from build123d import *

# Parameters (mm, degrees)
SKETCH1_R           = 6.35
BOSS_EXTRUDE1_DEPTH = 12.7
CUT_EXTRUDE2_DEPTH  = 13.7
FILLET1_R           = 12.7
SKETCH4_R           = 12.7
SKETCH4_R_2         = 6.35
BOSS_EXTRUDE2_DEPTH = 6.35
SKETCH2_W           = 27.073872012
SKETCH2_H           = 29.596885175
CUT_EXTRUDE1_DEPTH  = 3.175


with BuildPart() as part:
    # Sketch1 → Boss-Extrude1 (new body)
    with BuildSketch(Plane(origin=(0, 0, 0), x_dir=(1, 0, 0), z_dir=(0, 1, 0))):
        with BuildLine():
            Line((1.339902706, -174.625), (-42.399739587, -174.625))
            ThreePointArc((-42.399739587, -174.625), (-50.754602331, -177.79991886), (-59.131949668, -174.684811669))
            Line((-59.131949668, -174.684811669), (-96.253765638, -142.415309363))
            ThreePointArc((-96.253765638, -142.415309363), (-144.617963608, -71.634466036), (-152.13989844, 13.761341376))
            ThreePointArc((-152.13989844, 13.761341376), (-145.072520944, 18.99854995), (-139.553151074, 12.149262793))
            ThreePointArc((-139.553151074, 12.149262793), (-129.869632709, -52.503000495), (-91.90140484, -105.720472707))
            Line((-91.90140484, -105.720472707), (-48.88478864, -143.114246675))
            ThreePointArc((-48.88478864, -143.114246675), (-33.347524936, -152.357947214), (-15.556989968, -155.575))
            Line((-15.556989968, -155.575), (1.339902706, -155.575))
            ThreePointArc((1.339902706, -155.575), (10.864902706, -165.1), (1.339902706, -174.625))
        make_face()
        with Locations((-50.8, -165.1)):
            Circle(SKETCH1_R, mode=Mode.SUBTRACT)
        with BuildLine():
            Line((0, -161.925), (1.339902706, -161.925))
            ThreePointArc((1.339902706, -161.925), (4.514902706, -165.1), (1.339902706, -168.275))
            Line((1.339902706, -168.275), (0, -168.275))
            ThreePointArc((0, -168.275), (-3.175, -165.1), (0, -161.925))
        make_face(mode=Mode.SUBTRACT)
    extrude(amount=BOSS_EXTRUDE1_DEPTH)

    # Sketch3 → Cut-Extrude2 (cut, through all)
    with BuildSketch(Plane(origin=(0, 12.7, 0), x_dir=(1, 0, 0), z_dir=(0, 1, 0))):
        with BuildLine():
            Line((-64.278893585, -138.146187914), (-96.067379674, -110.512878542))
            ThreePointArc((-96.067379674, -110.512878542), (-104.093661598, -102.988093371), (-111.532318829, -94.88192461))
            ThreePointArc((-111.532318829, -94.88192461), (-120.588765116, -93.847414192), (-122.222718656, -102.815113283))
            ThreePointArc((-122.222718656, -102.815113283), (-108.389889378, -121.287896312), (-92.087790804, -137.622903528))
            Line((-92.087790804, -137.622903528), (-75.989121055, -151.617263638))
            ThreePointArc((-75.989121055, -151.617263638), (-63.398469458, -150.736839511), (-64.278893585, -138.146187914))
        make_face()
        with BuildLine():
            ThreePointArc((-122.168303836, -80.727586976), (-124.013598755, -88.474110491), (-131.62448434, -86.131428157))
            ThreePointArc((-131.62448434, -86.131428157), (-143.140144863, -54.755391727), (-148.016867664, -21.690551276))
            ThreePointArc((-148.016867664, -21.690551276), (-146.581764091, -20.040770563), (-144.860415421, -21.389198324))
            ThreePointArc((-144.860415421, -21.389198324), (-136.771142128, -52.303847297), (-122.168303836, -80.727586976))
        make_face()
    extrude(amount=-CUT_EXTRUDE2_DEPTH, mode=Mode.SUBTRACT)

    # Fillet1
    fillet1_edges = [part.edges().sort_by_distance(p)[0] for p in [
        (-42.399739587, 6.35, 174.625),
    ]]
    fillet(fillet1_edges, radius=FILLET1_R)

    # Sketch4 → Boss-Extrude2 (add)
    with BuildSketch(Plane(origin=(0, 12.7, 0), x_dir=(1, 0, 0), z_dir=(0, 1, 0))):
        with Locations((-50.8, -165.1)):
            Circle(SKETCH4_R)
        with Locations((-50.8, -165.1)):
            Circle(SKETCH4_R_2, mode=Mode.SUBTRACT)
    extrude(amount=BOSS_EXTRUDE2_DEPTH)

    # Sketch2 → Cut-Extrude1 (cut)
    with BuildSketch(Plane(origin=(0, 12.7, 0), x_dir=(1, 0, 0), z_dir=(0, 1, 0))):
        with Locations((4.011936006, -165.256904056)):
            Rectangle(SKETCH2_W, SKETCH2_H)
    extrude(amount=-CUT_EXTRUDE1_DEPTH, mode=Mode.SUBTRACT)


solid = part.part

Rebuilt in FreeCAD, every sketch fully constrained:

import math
import FreeCAD as App
import Part
import Sketcher
from FreeCAD import Vector
Q = App.Units.Quantity


def edges_at(feature, points):
    """Names of the edges that pass closest to the given points."""
    edges = feature.Shape.Edges
    near = lambda p: min(range(len(edges)), key=lambda i: edges[i].distToShape(Part.Vertex(*p))[0])
    return sorted({f"Edge{near(p) + 1}" for p in points})

doc = App.newDocument("Part")
params = doc.addObject("Spreadsheet::Sheet", "Params")
for row, (alias, value) in enumerate([
    ("sketch1_radius", "2 in"),
    ("sketch1_diameter", "0.5 in"),
    ("sketch1_radius2", "0.5 in"),
    ("sketch1_radius3", "0.375 in"),
    ("sketch1_radius4", "5.515 in"),
    ("pad1_length", "0.5 in"),
    ("sketch2_radius", "5.765 in"),
    ("sketch2_radius2", "0.0625 in"),
    ("fillet_radius", "0.5 in"),
    ("sketch3_diameter", "1 in"),
    ("sketch3_diameter2", "0.5 in"),
    ("pad2_length", "0.25 in"),
    ("pocket2_length", "0.125 in"),
], start=1):
    params.set(f"A{row}", alias)
    params.set(f"B{row}", "=" + value)
    params.setAlias(f"B{row}", alias)

body = doc.addObject("PartDesign::Body", "Body")

sketch1 = body.newObject("Sketcher::SketchObject", "Sketch")
sketch1.AttachmentSupport = (doc.getObject("XZ_Plane"), [""])
sketch1.MapMode = "FlatFace"
sketch1.addGeometry([
    Part.LineSegment(Vector(-42.4, 174.6, 0), Vector(1.3, 174.6, 0)),
    Part.ArcOfCircle(Part.Circle(Vector(1.3, 165.1, 0), Vector(0, 0, 1), 9.5), math.radians(-90), math.radians(90)),
    Part.LineSegment(Vector(1.3, 155.6, 0), Vector(-15.6, 155.6, 0)),
    Part.ArcOfCircle(Part.Circle(Vector(-15.6, 104.8, 0), Vector(0, 0, 1), 50.8), math.radians(90), math.radians(131)),
    Part.LineSegment(Vector(-48.9, 143.1, 0), Vector(-91.9, 105.7, 0)),
    Part.ArcOfCircle(Part.Circle(Vector(0, 0, 0), Vector(0, 0, 1), 140.1), math.radians(131), math.radians(185)),
    Part.ArcOfCircle(Part.Circle(Vector(-145.9, -12.7, 0), Vector(0, 0, 1), 6.3), math.radians(-170), math.radians(5)),
    Part.ArcOfCircle(Part.Circle(Vector(14.9, 14.6, 0), Vector(0, 0, 1), 169.4), math.radians(131), math.radians(190)),
    Part.LineSegment(Vector(-96.3, 142.4, 0), Vector(-59.1, 174.7, 0)),
    Part.ArcOfCircle(Part.Circle(Vector(-50.8, 165.1, 0), Vector(0, 0, 1), 12.7), math.radians(49), math.radians(131)),
    Part.LineSegment(Vector(0, 161.9, 0), Vector(1.3, 161.9, 0)),
    Part.ArcOfCircle(Part.Circle(Vector(1.3, 165.1, 0), Vector(0, 0, 1), 3.2), math.radians(-90), math.radians(90)),
    Part.LineSegment(Vector(1.3, 168.3, 0), Vector(0, 168.3, 0)),
    Part.ArcOfCircle(Part.Circle(Vector(0, 165.1, 0), Vector(0, 0, 1), 3.2), math.radians(90), math.radians(270)),
    Part.Circle(Vector(-50.8, 165.1, 0), Vector(0, 0, 1), 6.3),
], False)
sketch1.addConstraint([
    Sketcher.Constraint("Tangent", 0, 2, 1, 2),
    Sketcher.Constraint("Tangent", 1, 1, 2, 1),
    Sketcher.Constraint("Tangent", 2, 2, 3, 1),
    Sketcher.Constraint("Tangent", 3, 2, 4, 1),
    Sketcher.Constraint("Tangent", 4, 2, 5, 1),
    Sketcher.Constraint("Tangent", 5, 2, 6, 2),
    Sketcher.Constraint("Tangent", 6, 1, 7, 2),
    Sketcher.Constraint("Tangent", 7, 1, 8, 1),
    Sketcher.Constraint("Tangent", 8, 2, 9, 2),
    Sketcher.Constraint("Coincident", 9, 1, 0, 1),
    Sketcher.Constraint("Tangent", 10, 2, 11, 1),
    Sketcher.Constraint("Tangent", 11, 2, 12, 1),
    Sketcher.Constraint("Tangent", 12, 2, 13, 1),
    Sketcher.Constraint("Tangent", 13, 2, 10, 1),
    Sketcher.Constraint("Horizontal", 0),
    Sketcher.Constraint("Horizontal", 2),
    Sketcher.Constraint("Horizontal", 10),
    Sketcher.Constraint("Horizontal", 12),
    Sketcher.Constraint("Coincident", 5, 3, -1, 1),
    Sketcher.Constraint("Coincident", 11, 3, 1, 3),
    Sketcher.Constraint("Coincident", 14, 3, 9, 3),
    Sketcher.Constraint("Equal", 6, 14),
    Sketcher.Constraint("PointOnObject", 13, 3, -2),
    Sketcher.Constraint("Parallel", 4, 8),
    Sketcher.Constraint("Horizontal", 1, 3, 9, 3),
    Sketcher.Constraint("Radius", 3, Q("2 in")),
    Sketcher.Constraint("Diameter", 14, Q("0.5 in")),
    Sketcher.Constraint("Radius", 9, Q("0.5 in")),
    Sketcher.Constraint("DistanceX", 9, 3, -1, 1, Q("2 in")),
    Sketcher.Constraint("Angle", 4, Q("-139 deg")),
    Sketcher.Constraint("Radius", 1, Q("0.375 in")),
    Sketcher.Constraint("Radius", 5, Q("5.515 in")),
    Sketcher.Constraint("Radius", 11, Q("0.125 in")),
    Sketcher.Constraint("DistanceY", 6, 3, 1, 3, Q("7 in")),
    Sketcher.Constraint("DistanceY", -1, 1, 1, 3, Q("6.5 in")),
    Sketcher.Constraint("Radius", 7, 169.416563),
    Sketcher.Constraint("DistanceX", 0, 1, 0, 2, 43.739642),
])
sketch1.setExpression("Constraints[25]", "Params.sketch1_radius")
sketch1.setExpression("Constraints[26]", "Params.sketch1_diameter")
sketch1.setExpression("Constraints[27]", "Params.sketch1_radius2")
sketch1.setExpression("Constraints[30]", "Params.sketch1_radius3")
sketch1.setExpression("Constraints[31]", "Params.sketch1_radius4")
pad1 = body.newObject("PartDesign::Pad", "Pad")
pad1.Profile = sketch1
pad1.setExpression("Length", "Params.pad1_length")
pad1.Reversed = True

sketch2 = body.newObject("Sketcher::SketchObject", "Sketch001")
sketch2.AttachmentSupport = (doc.getObject("XZ_Plane"), [""])
sketch2.MapMode = "FlatFace"
sketch2.AttachmentOffset = App.Placement(Vector(0, 0, -0.5 * 25.4), App.Rotation())
sketch2.addGeometry([
    Part.LineSegment(Vector(-64.3, 138.1, 0), Vector(-96.1, 110.5, 0)),
    Part.ArcOfCircle(Part.Circle(Vector(0, 0, 0), Vector(0, 0, 1), 146.4), math.radians(131), math.radians(139.61)),
    Part.ArcOfCircle(Part.Circle(Vector(-116.6, 99.2, 0), Vector(0, 0, 1), 6.7), math.radians(147), math.radians(320)),
    Part.ArcOfCircle(Part.Circle(Vector(14.9, 14.6, 0), Vector(0, 0, 1), 163.1), math.radians(131), math.radians(147.23)),
    Part.LineSegment(Vector(-92.1, 137.6, 0), Vector(-76, 151.6, 0)),
    Part.ArcOfCircle(Part.Circle(Vector(-70.1, 144.9, 0), Vector(0, 0, 1), 8.9), math.radians(-49), math.radians(131)),
    Part.ArcOfCircle(Part.Circle(Vector(-126.7, 83.7, 0), Vector(0, 0, 1), 5.5), math.radians(-33), math.radians(154)),
    Part.ArcOfCircle(Part.Circle(Vector(0, 0, 0), Vector(0, 0, 1), 146.4), math.radians(147), math.radians(172)),
    Part.ArcOfCircle(Part.Circle(Vector(-146.4, 21.6, 0), Vector(0, 0, 1), 1.6), math.radians(177), math.radians(352)),
    Part.ArcOfCircle(Part.Circle(Vector(14.9, 14.6, 0), Vector(0, 0, 1), 163.1), math.radians(154), math.radians(177)),
], False)
sketch2.addConstraint([
    Sketcher.Constraint("Tangent", 0, 2, 1, 1),
    Sketcher.Constraint("Tangent", 1, 2, 2, 2),
    Sketcher.Constraint("Tangent", 2, 1, 3, 2),
    Sketcher.Constraint("Tangent", 3, 1, 4, 1),
    Sketcher.Constraint("Tangent", 4, 2, 5, 2),
    Sketcher.Constraint("Tangent", 5, 1, 0, 1),
    Sketcher.Constraint("Tangent", 6, 1, 7, 1),
    Sketcher.Constraint("Tangent", 7, 2, 8, 2),
    Sketcher.Constraint("Tangent", 8, 1, 9, 2),
    Sketcher.Constraint("Tangent", 9, 1, 6, 2),
    Sketcher.Constraint("Coincident", 1, 3, -1, 1),
    Sketcher.Constraint("Coincident", 7, 3, -1, 1),
    Sketcher.Constraint("Coincident", 9, 3, 3, 3),
    Sketcher.Constraint("Equal", 1, 7),
    Sketcher.Constraint("Equal", 3, 9),
    Sketcher.Constraint("Parallel", 0, 4),
    Sketcher.Constraint("Angle", 0, Q("-139 deg")),
    Sketcher.Constraint("Radius", 1, Q("5.765 in")),
    Sketcher.Constraint("Radius", 8, Q("0.0625 in")),
    Sketcher.Constraint("Radius", 2, 6.670943),
    Sketcher.Constraint("Radius", 3, 163.066563),
    Sketcher.Constraint("Radius", 5, 8.924675),
    Sketcher.Constraint("Radius", 6, 5.457096),
    Sketcher.Constraint("DistanceX", -1, 1, 3, 3, 14.8935),
    Sketcher.Constraint("DistanceY", 1, 2, 5, 3, 49.999801),
])
sketch2.setExpression("Constraints[17]", "Params.sketch2_radius")
sketch2.setExpression("Constraints[18]", "Params.sketch2_radius2")
pocket1 = body.newObject("PartDesign::Pocket", "Pocket")
pocket1.Profile = sketch2
pocket1.Type = "ThroughAll"
pocket1.Reversed = True
doc.recompute()

fillet = body.newObject("PartDesign::Fillet", "Fillet")
fillet.Base = (pocket1, edges_at(pocket1, [(-42.4, 6.35, 174.625)]))
fillet.setExpression("Radius", "Params.fillet_radius")

sketch3 = body.newObject("Sketcher::SketchObject", "Sketch002")
sketch3.AttachmentSupport = (doc.getObject("XZ_Plane"), [""])
sketch3.MapMode = "FlatFace"
sketch3.AttachmentOffset = App.Placement(Vector(0, 0, -0.5 * 25.4), App.Rotation())
sketch3.addGeometry([
    Part.Circle(Vector(-51, 165, 0), Vector(0, 0, 1), 13),
    Part.Circle(Vector(-51, 165, 0), Vector(0, 0, 1), 6),
], False)
sketch3.addConstraint([
    Sketcher.Constraint("Coincident", 1, 3, 0, 3),
    Sketcher.Constraint("Diameter", 0, Q("1 in")),
    Sketcher.Constraint("Diameter", 1, Q("0.5 in")),
    Sketcher.Constraint("DistanceX", 0, 3, -1, 1, Q("2 in")),
    Sketcher.Constraint("DistanceY", -1, 1, 0, 3, Q("6.5 in")),
])
sketch3.setExpression("Constraints[1]", "Params.sketch3_diameter")
sketch3.setExpression("Constraints[2]", "Params.sketch3_diameter2")
pad2 = body.newObject("PartDesign::Pad", "Pad001")
pad2.Profile = sketch3
pad2.setExpression("Length", "Params.pad2_length")
pad2.Reversed = True

sketch4 = body.newObject("Sketcher::SketchObject", "Sketch003")
sketch4.AttachmentSupport = (doc.getObject("XZ_Plane"), [""])
sketch4.MapMode = "FlatFace"
sketch4.AttachmentOffset = App.Placement(Vector(0, 0, -0.5 * 25.4), App.Rotation())
sketch4.addGeometry([
    Part.LineSegment(Vector(-10, 150, 0), Vector(-10, 180, 0)),
    Part.LineSegment(Vector(-10, 180, 0), Vector(18, 180, 0)),
    Part.LineSegment(Vector(18, 180, 0), Vector(18, 150, 0)),
    Part.LineSegment(Vector(18, 150, 0), Vector(-10, 150, 0)),
], False)
sketch4.addConstraint([
    Sketcher.Constraint("Coincident", 0, 2, 1, 1),
    Sketcher.Constraint("Coincident", 1, 2, 2, 1),
    Sketcher.Constraint("Coincident", 2, 2, 3, 1),
    Sketcher.Constraint("Coincident", 3, 2, 0, 1),
    Sketcher.Constraint("Vertical", 0),
    Sketcher.Constraint("Horizontal", 1),
    Sketcher.Constraint("Vertical", 2),
    Sketcher.Constraint("Horizontal", 3),
    Sketcher.Constraint("DistanceX", 0, 2, -1, 1, Q("0.375 in")),
    Sketcher.Constraint("DistanceX", 1, 1, 1, 2, 27.073872),
    Sketcher.Constraint("DistanceY", 0, 1, 0, 2, 29.596885),
    Sketcher.Constraint("DistanceY", -1, 1, 2, 2, 150.458461),
])
pocket2 = body.newObject("PartDesign::Pocket", "Pocket001")
pocket2.Profile = sketch4
pocket2.setExpression("Length", "Params.pocket2_length")
pocket2.Reversed = True

doc.recompute()
